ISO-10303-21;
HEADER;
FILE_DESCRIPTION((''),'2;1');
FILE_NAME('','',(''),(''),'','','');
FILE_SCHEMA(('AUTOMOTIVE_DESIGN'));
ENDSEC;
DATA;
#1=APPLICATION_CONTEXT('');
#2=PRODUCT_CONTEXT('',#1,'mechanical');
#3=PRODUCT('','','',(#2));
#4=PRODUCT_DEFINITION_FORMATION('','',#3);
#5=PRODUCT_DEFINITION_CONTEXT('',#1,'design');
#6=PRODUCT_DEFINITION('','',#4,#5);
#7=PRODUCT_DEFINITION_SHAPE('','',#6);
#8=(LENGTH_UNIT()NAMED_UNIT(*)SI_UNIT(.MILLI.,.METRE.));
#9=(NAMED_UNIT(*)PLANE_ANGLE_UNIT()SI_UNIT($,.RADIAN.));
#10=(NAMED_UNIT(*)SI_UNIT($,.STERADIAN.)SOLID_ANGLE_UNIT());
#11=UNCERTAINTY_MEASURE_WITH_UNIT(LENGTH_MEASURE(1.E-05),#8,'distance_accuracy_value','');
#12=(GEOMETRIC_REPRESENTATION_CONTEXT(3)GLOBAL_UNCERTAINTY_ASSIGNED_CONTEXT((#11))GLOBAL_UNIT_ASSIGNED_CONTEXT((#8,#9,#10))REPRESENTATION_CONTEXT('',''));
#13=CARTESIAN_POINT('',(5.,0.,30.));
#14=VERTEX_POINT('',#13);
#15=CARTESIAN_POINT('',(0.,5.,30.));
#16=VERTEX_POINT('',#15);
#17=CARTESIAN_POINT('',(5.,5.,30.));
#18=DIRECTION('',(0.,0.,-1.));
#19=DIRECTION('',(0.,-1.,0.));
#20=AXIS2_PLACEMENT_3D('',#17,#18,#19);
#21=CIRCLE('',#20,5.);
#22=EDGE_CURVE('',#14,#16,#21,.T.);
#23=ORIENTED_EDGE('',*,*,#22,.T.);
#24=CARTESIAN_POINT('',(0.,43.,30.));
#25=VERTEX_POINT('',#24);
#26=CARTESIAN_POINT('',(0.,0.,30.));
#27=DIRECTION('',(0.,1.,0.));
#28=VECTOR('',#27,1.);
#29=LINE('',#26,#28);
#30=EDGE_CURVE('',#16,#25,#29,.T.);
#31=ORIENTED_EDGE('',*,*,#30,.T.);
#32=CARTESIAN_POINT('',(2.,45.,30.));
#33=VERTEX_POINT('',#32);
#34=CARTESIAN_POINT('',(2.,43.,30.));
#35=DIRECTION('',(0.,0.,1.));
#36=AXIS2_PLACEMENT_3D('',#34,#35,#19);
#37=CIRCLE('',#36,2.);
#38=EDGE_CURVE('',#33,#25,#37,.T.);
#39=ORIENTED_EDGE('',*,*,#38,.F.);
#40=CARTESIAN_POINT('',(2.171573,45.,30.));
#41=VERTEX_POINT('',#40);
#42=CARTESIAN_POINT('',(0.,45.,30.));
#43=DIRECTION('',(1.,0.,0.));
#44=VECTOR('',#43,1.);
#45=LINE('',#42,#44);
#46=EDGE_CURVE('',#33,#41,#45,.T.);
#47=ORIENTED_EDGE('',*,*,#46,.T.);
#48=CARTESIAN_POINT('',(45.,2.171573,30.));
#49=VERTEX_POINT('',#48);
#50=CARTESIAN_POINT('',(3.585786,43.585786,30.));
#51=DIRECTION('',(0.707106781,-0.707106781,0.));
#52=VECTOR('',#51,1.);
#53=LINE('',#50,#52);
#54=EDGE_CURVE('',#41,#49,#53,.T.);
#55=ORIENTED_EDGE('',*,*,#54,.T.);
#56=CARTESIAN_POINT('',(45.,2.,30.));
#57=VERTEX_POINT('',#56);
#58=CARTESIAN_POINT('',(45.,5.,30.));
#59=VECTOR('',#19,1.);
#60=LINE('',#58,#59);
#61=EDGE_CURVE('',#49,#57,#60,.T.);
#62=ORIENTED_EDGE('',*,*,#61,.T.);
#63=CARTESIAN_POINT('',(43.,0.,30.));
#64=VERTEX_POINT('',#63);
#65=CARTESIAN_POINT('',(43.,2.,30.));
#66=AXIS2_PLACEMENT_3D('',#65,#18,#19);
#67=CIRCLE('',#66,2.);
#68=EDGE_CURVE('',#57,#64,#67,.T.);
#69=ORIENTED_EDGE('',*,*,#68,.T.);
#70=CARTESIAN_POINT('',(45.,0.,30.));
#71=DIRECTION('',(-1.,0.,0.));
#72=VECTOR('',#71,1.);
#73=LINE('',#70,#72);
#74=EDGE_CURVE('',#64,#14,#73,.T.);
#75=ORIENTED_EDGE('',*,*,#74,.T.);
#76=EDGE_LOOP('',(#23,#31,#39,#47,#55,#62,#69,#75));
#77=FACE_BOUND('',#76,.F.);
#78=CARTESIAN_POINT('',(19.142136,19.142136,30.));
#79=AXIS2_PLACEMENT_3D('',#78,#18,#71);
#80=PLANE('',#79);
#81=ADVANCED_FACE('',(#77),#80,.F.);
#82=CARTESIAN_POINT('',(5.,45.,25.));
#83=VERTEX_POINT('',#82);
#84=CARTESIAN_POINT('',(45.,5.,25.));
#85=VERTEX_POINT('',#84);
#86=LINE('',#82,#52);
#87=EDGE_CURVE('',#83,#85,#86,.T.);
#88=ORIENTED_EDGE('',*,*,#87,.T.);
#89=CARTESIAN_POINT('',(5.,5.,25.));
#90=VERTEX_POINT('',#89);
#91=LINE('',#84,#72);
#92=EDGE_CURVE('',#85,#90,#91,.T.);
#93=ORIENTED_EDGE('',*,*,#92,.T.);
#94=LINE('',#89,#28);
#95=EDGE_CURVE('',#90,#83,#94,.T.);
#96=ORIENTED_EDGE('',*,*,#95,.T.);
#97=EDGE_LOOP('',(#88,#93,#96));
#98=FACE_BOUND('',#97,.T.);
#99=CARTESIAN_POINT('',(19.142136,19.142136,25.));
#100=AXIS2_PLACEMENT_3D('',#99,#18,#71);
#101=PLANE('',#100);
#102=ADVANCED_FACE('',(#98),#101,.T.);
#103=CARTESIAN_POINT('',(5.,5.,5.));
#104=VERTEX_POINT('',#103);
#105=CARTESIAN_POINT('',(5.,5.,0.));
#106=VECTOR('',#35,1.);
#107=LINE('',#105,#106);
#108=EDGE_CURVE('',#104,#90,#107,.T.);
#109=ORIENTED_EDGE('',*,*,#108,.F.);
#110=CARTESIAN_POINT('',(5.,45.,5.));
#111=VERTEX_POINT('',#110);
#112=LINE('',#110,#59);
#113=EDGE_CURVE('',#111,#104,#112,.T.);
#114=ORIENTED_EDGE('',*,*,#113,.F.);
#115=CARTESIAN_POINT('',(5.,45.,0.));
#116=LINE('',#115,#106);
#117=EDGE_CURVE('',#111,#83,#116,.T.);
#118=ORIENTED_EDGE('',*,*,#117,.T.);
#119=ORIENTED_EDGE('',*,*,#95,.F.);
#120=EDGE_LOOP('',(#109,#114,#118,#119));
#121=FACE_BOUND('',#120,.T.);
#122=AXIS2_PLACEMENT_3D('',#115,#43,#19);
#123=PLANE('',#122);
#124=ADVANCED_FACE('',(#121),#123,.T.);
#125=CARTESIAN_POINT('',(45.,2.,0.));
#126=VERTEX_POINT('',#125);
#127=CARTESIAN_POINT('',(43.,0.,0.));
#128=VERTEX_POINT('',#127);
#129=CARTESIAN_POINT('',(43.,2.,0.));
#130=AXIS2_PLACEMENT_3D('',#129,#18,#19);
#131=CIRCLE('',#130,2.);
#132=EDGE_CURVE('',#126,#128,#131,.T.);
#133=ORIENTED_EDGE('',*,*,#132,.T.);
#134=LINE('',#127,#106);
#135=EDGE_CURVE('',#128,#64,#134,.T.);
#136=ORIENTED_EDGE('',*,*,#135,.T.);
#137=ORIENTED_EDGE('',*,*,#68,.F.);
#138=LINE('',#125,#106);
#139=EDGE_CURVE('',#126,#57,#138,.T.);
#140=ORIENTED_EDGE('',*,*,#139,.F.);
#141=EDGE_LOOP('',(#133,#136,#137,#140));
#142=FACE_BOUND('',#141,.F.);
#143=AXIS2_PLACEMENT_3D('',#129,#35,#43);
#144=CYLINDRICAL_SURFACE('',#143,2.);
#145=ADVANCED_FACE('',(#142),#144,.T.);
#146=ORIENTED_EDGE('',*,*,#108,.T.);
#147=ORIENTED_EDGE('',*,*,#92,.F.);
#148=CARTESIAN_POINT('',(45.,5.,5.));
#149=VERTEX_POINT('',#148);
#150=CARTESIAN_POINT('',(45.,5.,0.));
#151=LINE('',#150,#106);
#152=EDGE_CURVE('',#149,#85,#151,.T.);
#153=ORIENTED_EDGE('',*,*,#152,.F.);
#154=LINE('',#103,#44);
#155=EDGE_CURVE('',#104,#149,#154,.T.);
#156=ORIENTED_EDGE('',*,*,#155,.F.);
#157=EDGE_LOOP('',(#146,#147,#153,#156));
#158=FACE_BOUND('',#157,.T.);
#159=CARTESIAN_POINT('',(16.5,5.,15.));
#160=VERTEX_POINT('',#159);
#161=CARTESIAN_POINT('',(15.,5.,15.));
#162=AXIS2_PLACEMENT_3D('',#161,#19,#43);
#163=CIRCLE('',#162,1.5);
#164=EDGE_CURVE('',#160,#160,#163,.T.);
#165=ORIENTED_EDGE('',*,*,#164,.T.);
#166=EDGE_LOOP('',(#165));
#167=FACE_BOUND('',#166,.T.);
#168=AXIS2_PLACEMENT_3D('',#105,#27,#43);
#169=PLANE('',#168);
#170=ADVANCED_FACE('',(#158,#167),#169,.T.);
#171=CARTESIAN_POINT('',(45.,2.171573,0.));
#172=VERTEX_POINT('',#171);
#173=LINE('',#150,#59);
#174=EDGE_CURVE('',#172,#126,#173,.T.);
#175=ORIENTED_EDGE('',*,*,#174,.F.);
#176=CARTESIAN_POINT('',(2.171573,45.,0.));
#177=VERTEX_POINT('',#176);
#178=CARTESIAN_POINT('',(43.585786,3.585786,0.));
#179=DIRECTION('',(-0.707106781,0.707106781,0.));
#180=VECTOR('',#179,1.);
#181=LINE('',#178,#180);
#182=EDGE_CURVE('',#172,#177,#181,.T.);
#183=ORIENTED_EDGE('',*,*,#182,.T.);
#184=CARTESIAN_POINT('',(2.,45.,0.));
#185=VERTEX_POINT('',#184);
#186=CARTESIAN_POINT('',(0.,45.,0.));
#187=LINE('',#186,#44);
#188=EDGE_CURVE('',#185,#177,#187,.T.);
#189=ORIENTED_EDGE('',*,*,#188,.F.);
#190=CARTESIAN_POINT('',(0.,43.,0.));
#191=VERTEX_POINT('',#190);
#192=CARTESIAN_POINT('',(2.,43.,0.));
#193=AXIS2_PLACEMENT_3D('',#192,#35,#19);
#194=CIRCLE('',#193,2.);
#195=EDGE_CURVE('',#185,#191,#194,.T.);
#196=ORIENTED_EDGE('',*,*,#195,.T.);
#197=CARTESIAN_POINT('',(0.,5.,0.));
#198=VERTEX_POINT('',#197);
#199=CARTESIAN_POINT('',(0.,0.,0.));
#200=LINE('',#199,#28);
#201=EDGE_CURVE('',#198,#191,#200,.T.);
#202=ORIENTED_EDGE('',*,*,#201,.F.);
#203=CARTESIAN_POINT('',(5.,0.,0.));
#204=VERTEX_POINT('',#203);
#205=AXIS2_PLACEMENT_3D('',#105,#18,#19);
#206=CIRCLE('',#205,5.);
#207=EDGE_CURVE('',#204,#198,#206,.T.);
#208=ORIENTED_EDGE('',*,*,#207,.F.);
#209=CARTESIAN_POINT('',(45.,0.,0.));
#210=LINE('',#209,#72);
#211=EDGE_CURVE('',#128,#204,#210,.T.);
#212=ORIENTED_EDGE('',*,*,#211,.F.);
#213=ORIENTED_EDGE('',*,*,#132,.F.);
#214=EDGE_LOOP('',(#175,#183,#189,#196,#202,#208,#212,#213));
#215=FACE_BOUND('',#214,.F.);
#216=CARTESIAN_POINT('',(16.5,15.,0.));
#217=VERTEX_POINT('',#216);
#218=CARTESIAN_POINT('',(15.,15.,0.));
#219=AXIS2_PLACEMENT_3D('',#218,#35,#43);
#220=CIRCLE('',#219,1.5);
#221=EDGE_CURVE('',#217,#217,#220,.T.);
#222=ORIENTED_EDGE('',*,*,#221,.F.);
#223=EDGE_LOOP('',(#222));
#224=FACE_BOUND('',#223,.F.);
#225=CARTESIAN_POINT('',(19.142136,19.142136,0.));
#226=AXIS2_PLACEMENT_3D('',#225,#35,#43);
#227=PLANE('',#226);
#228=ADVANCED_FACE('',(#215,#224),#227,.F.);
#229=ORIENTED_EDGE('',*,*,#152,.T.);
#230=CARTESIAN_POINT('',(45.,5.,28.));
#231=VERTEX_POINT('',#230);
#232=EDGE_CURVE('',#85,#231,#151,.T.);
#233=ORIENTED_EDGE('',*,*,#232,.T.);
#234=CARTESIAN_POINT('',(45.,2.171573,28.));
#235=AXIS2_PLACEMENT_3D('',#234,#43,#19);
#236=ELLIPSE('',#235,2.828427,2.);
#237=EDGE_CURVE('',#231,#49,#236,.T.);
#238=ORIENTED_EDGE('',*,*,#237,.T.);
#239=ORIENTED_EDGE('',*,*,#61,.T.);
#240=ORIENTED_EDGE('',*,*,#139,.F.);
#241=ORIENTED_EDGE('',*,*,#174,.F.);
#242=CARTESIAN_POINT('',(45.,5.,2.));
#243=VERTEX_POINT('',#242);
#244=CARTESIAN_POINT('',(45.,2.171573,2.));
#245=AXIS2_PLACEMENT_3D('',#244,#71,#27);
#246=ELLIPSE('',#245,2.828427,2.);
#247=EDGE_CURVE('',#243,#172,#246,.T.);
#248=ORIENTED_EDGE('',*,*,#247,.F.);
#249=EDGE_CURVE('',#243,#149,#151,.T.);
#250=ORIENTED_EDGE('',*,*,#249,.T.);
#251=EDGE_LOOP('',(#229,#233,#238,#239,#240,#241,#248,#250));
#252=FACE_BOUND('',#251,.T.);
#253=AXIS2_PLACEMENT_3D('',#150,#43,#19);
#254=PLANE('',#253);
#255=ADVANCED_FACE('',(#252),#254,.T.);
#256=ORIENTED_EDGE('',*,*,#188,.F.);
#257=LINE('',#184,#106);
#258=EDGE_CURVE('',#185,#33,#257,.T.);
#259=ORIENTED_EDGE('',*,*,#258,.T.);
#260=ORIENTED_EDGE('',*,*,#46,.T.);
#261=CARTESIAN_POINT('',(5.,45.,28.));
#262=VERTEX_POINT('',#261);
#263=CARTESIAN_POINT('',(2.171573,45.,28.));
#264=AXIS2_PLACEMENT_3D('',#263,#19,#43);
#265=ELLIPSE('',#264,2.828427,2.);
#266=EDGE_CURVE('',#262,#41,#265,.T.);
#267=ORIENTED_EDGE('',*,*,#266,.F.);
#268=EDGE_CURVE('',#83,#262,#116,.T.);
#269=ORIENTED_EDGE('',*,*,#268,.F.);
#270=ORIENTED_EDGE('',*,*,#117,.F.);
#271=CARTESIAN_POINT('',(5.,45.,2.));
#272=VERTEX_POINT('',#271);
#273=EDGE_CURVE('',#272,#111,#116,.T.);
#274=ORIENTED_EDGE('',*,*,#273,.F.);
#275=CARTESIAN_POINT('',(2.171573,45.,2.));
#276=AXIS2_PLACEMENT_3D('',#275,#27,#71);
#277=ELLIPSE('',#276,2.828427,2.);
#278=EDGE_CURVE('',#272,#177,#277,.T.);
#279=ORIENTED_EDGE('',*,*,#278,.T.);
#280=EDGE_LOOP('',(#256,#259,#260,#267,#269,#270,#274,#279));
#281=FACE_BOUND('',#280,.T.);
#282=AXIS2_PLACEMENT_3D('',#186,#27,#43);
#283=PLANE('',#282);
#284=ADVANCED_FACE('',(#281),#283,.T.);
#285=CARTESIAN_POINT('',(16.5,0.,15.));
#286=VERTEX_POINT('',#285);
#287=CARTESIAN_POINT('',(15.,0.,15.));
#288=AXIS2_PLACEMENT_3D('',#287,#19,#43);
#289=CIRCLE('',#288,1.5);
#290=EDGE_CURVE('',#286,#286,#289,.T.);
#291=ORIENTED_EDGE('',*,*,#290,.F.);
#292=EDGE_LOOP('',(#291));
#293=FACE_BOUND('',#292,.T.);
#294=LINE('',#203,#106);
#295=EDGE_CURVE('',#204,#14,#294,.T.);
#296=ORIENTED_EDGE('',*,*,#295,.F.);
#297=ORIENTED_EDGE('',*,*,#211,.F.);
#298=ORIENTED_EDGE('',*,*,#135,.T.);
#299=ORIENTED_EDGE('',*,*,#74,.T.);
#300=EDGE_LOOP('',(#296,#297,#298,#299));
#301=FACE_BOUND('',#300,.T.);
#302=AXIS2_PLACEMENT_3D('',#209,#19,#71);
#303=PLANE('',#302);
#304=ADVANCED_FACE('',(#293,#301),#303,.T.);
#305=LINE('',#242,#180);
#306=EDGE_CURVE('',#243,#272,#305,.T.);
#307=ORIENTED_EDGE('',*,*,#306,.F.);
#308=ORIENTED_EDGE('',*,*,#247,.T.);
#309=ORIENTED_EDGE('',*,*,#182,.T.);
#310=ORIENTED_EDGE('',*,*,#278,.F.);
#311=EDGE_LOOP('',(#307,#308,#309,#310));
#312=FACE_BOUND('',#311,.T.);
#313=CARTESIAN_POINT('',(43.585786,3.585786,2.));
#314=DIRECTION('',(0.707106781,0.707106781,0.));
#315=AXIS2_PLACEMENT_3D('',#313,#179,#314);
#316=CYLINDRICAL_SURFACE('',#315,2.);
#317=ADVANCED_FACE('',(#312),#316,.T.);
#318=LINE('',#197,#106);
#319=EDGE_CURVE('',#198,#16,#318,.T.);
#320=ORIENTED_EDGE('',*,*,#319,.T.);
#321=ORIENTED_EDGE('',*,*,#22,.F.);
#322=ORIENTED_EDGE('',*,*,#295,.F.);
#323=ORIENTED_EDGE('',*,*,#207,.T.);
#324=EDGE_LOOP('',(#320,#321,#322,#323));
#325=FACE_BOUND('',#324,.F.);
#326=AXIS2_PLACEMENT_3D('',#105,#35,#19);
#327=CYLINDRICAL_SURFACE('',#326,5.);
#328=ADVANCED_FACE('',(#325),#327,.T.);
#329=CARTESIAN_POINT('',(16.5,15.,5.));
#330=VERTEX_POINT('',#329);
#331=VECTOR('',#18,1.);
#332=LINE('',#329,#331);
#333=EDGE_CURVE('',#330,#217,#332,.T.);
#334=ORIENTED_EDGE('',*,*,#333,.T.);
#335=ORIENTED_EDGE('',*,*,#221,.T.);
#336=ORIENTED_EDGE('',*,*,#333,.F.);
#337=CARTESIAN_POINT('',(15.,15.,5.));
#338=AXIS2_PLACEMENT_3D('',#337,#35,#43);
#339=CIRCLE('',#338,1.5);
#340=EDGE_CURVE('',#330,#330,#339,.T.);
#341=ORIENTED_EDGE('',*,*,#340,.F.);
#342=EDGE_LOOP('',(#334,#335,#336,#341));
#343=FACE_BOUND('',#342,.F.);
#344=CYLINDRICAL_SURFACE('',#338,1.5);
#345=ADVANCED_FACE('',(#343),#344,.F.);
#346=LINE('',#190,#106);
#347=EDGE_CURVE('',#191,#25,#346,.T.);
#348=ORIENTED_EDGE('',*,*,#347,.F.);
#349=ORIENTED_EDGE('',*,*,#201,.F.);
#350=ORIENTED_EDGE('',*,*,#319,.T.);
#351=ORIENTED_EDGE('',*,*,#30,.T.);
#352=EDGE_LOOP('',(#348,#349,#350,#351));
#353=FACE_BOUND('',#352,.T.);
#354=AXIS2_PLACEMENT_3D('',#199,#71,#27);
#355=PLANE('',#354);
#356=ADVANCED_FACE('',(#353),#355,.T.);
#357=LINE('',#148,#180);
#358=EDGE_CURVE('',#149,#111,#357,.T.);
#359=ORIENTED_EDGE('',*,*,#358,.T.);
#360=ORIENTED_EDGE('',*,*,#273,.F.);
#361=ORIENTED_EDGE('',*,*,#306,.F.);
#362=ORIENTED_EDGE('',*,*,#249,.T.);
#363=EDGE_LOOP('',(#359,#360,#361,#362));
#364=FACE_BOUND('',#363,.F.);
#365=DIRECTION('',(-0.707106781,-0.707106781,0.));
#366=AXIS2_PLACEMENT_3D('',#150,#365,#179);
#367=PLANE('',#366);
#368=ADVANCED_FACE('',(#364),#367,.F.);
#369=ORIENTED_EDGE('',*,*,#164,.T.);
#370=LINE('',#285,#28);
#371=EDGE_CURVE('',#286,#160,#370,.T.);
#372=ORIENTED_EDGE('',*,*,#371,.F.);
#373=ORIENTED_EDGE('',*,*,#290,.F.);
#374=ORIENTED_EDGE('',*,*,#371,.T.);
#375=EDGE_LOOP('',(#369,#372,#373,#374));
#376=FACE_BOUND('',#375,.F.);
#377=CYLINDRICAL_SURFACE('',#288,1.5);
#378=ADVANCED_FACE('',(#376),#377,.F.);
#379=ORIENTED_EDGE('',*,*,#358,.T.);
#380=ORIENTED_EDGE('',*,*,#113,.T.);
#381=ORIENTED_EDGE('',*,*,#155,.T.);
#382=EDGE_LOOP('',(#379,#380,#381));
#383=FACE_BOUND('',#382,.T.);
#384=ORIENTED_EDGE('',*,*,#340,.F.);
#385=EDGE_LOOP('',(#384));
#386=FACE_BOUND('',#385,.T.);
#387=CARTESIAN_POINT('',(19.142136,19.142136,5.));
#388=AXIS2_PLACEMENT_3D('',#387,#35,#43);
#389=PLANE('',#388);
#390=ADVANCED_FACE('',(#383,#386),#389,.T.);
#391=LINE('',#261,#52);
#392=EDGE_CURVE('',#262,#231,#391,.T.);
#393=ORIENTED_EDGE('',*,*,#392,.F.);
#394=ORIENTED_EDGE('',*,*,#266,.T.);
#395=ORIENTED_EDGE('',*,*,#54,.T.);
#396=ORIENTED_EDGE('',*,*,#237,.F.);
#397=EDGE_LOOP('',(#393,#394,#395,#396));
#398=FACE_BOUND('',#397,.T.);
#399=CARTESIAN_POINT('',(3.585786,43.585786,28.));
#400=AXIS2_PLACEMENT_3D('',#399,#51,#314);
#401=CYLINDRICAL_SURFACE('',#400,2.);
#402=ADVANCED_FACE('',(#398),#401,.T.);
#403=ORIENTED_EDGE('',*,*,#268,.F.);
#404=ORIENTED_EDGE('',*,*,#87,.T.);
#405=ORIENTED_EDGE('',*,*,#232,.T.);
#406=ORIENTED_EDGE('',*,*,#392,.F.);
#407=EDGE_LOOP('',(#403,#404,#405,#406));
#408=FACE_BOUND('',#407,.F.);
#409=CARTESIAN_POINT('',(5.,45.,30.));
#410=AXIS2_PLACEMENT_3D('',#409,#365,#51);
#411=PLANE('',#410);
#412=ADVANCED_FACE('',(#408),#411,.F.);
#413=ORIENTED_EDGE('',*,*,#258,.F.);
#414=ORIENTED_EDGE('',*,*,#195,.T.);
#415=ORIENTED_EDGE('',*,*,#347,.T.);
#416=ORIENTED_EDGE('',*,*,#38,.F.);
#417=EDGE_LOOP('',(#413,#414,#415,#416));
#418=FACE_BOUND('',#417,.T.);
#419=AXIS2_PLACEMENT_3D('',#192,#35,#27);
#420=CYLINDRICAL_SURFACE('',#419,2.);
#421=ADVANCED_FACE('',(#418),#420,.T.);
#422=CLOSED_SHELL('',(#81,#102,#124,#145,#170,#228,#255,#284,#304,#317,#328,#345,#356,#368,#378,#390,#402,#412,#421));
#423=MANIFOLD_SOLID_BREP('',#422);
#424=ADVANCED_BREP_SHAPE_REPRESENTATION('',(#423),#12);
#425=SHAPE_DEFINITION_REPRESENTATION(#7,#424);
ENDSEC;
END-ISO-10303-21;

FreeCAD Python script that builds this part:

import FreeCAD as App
import Part
import Sketcher

V = App.Vector
Q = App.Units.Quantity


def edges_at(feature, points):
    """Names of the edges that pass closest to the given points."""
    edges = feature.Shape.Edges
    near = lambda p: min(range(len(edges)), key=lambda i: edges[i].distToShape(Part.Vertex(*p))[0])
    return sorted({f"Edge{near(p) + 1}" for p in points})

doc = App.newDocument("Part")
body = doc.addObject("PartDesign::Body", "Body")

# Sketch on XY plane
sketch1 = body.newObject("Sketcher::SketchObject", "Sketch")
sketch1.AttachmentSupport = (doc.getObject("XY_Plane"), [""])
sketch1.MapMode = "FlatFace"
sketch1.addGeometry(Part.LineSegment(V(0, 45, 0), V(0, 0, 0)), False)
sketch1.addGeometry(Part.LineSegment(V(0, 0, 0), V(45, 0, 0)), False)
sketch1.addGeometry(Part.LineSegment(V(45, 0, 0), V(45, 5, 0)), False)
sketch1.addGeometry(Part.LineSegment(V(45, 5, 0), V(5, 5, 0)), False)
sketch1.addGeometry(Part.LineSegment(V(5, 5, 0), V(5, 45, 0)), False)
sketch1.addGeometry(Part.LineSegment(V(5, 45, 0), V(0, 45, 0)), False)
sketch1.addConstraint(Sketcher.Constraint("Coincident", 0, 2, 1, 1))
sketch1.addConstraint(Sketcher.Constraint("Coincident", 1, 2, 2, 1))
sketch1.addConstraint(Sketcher.Constraint("Coincident", 2, 2, 3, 1))
sketch1.addConstraint(Sketcher.Constraint("Coincident", 3, 2, 4, 1))
sketch1.addConstraint(Sketcher.Constraint("Coincident", 4, 2, 5, 1))
sketch1.addConstraint(Sketcher.Constraint("Coincident", 5, 2, 0, 1))
sketch1.addConstraint(Sketcher.Constraint("Vertical", 0))
sketch1.addConstraint(Sketcher.Constraint("Horizontal", 1))
sketch1.addConstraint(Sketcher.Constraint("Vertical", 2))
sketch1.addConstraint(Sketcher.Constraint("Horizontal", 3))
sketch1.addConstraint(Sketcher.Constraint("Vertical", 4))
sketch1.addConstraint(Sketcher.Constraint("Horizontal", 5))
sketch1.addConstraint(Sketcher.Constraint("Coincident", 0, 2, -1, 1))
sketch1.addConstraint(Sketcher.Constraint("Equal", 1, 0))
sketch1.addConstraint(Sketcher.Constraint("Equal", 5, 2))
sketch1.addConstraint(Sketcher.Constraint("DistanceX", 1, 1, 1, 2, Q("45 mm")))
sketch1.addConstraint(Sketcher.Constraint("DistanceX", 3, 2, 3, 1, Q("40 mm")))
pad1 = body.newObject("PartDesign::Pad", "Pad")
pad1.Profile = sketch1
pad1.Length = 30

# Sketch on XY plane
sketch2 = body.newObject("Sketcher::SketchObject", "Sketch001")
sketch2.AttachmentSupport = (doc.getObject("XY_Plane"), [""])
sketch2.MapMode = "FlatFace"
sketch2.AttachmentOffset = App.Placement(V(0, 0, 30), App.Rotation())
sketch2.addGeometry(Part.LineSegment(V(45, 5, 0), V(5, 45, 0)), False)
sketch2.addGeometry(Part.LineSegment(V(5, 45, 0), V(5, 5, 0)), False)
sketch2.addGeometry(Part.LineSegment(V(5, 5, 0), V(45, 5, 0)), False)
sketch2.addConstraint(Sketcher.Constraint("Coincident", 0, 2, 1, 1))
sketch2.addConstraint(Sketcher.Constraint("Coincident", 1, 2, 2, 1))
sketch2.addConstraint(Sketcher.Constraint("Coincident", 2, 2, 0, 1))
sketch2.addConstraint(Sketcher.Constraint("Vertical", 1))
sketch2.addConstraint(Sketcher.Constraint("Horizontal", 2))
sketch2.addConstraint(Sketcher.Constraint("Equal", 2, 1))
sketch2.addConstraint(Sketcher.Constraint("DistanceX", 2, 1, 2, 2, Q("40 mm")))
sketch2.addConstraint(Sketcher.Constraint("DistanceX", -1, 1, 0, 2, Q("5 mm")))
sketch2.addConstraint(Sketcher.Constraint("DistanceY", -1, 1, 0, 2, Q("45 mm")))
pad2 = body.newObject("PartDesign::Pad", "Pad001")
pad2.Profile = sketch2
pad2.Length = 5
pad2.Reversed = True

# Sketch on XY plane
sketch3 = body.newObject("Sketcher::SketchObject", "Sketch002")
sketch3.AttachmentSupport = (doc.getObject("XY_Plane"), [""])
sketch3.MapMode = "FlatFace"
sketch3.addGeometry(Part.LineSegment(V(5, 5, 0), V(5, 45, 0)), False)
sketch3.addGeometry(Part.LineSegment(V(5, 45, 0), V(45, 5, 0)), False)
sketch3.addGeometry(Part.LineSegment(V(45, 5, 0), V(5, 5, 0)), False)
sketch3.addConstraint(Sketcher.Constraint("Coincident", 0, 2, 1, 1))
sketch3.addConstraint(Sketcher.Constraint("Coincident", 1, 2, 2, 1))
sketch3.addConstraint(Sketcher.Constraint("Coincident", 2, 2, 0, 1))
sketch3.addConstraint(Sketcher.Constraint("Vertical", 0))
sketch3.addConstraint(Sketcher.Constraint("Horizontal", 2))
sketch3.addConstraint(Sketcher.Constraint("Equal", 2, 0))
sketch3.addConstraint(Sketcher.Constraint("DistanceX", 2, 2, 2, 1, Q("40 mm")))
sketch3.addConstraint(Sketcher.Constraint("DistanceX", -1, 1, 0, 2, Q("5 mm")))
sketch3.addConstraint(Sketcher.Constraint("DistanceY", -1, 1, 0, 2, Q("45 mm")))
pad3 = body.newObject("PartDesign::Pad", "Pad002")
pad3.Profile = sketch3
pad3.Length = 5

# Sketch on XZ plane
sketch4 = body.newObject("Sketcher::SketchObject", "Sketch003")
sketch4.AttachmentSupport = (doc.getObject("XZ_Plane"), [""])
sketch4.MapMode = "FlatFace"
sketch4.addGeometry(Part.Circle(V(15, 15, 0), V(0, 0, 1), 1.5), False)
sketch4.addConstraint(Sketcher.Constraint("Diameter", 0, Q("3 mm")))
sketch4.addConstraint(Sketcher.Constraint("DistanceX", -1, 1, 0, 3, Q("15 mm")))
sketch4.addConstraint(Sketcher.Constraint("DistanceY", -1, 1, 0, 3, Q("15 mm")))
pocket1 = body.newObject("PartDesign::Pocket", "Pocket")
pocket1.Profile = sketch4
pocket1.Type = "ThroughAll"

# Sketch on XY plane
sketch5 = body.newObject("Sketcher::SketchObject", "Sketch004")
sketch5.AttachmentSupport = (doc.getObject("XY_Plane"), [""])
sketch5.MapMode = "FlatFace"
sketch5.AttachmentOffset = App.Placement(V(0, 0, 5), App.Rotation())
sketch5.addGeometry(Part.Circle(V(15, 15, 0), V(0, 0, 1), 1.5), False)
sketch5.addConstraint(Sketcher.Constraint("Diameter", 0, Q("3 mm")))
sketch5.addConstraint(Sketcher.Constraint("DistanceX", -1, 1, 0, 3, Q("15 mm")))
sketch5.addConstraint(Sketcher.Constraint("DistanceY", -1, 1, 0, 3, Q("15 mm")))
pocket2 = body.newObject("PartDesign::Pocket", "Pocket001")
pocket2.Profile = sketch5
pocket2.Type = "ThroughAll"
doc.recompute()

fillet = body.newObject("PartDesign::Fillet", "Fillet")
fillet.Base = (pocket2, edges_at(pocket2, [
    (0, 45, 15),
    (45, 0, 15),
    (25, 25, 30),
    (25, 25, 0),
]))
fillet.Radius = 2
doc.recompute()

fillet2 = body.newObject("PartDesign::Fillet", "Fillet001")
fillet2.Base = (fillet, edges_at(fillet, [(0, 0, 15)]))
fillet2.Radius = 5

doc.recompute()
